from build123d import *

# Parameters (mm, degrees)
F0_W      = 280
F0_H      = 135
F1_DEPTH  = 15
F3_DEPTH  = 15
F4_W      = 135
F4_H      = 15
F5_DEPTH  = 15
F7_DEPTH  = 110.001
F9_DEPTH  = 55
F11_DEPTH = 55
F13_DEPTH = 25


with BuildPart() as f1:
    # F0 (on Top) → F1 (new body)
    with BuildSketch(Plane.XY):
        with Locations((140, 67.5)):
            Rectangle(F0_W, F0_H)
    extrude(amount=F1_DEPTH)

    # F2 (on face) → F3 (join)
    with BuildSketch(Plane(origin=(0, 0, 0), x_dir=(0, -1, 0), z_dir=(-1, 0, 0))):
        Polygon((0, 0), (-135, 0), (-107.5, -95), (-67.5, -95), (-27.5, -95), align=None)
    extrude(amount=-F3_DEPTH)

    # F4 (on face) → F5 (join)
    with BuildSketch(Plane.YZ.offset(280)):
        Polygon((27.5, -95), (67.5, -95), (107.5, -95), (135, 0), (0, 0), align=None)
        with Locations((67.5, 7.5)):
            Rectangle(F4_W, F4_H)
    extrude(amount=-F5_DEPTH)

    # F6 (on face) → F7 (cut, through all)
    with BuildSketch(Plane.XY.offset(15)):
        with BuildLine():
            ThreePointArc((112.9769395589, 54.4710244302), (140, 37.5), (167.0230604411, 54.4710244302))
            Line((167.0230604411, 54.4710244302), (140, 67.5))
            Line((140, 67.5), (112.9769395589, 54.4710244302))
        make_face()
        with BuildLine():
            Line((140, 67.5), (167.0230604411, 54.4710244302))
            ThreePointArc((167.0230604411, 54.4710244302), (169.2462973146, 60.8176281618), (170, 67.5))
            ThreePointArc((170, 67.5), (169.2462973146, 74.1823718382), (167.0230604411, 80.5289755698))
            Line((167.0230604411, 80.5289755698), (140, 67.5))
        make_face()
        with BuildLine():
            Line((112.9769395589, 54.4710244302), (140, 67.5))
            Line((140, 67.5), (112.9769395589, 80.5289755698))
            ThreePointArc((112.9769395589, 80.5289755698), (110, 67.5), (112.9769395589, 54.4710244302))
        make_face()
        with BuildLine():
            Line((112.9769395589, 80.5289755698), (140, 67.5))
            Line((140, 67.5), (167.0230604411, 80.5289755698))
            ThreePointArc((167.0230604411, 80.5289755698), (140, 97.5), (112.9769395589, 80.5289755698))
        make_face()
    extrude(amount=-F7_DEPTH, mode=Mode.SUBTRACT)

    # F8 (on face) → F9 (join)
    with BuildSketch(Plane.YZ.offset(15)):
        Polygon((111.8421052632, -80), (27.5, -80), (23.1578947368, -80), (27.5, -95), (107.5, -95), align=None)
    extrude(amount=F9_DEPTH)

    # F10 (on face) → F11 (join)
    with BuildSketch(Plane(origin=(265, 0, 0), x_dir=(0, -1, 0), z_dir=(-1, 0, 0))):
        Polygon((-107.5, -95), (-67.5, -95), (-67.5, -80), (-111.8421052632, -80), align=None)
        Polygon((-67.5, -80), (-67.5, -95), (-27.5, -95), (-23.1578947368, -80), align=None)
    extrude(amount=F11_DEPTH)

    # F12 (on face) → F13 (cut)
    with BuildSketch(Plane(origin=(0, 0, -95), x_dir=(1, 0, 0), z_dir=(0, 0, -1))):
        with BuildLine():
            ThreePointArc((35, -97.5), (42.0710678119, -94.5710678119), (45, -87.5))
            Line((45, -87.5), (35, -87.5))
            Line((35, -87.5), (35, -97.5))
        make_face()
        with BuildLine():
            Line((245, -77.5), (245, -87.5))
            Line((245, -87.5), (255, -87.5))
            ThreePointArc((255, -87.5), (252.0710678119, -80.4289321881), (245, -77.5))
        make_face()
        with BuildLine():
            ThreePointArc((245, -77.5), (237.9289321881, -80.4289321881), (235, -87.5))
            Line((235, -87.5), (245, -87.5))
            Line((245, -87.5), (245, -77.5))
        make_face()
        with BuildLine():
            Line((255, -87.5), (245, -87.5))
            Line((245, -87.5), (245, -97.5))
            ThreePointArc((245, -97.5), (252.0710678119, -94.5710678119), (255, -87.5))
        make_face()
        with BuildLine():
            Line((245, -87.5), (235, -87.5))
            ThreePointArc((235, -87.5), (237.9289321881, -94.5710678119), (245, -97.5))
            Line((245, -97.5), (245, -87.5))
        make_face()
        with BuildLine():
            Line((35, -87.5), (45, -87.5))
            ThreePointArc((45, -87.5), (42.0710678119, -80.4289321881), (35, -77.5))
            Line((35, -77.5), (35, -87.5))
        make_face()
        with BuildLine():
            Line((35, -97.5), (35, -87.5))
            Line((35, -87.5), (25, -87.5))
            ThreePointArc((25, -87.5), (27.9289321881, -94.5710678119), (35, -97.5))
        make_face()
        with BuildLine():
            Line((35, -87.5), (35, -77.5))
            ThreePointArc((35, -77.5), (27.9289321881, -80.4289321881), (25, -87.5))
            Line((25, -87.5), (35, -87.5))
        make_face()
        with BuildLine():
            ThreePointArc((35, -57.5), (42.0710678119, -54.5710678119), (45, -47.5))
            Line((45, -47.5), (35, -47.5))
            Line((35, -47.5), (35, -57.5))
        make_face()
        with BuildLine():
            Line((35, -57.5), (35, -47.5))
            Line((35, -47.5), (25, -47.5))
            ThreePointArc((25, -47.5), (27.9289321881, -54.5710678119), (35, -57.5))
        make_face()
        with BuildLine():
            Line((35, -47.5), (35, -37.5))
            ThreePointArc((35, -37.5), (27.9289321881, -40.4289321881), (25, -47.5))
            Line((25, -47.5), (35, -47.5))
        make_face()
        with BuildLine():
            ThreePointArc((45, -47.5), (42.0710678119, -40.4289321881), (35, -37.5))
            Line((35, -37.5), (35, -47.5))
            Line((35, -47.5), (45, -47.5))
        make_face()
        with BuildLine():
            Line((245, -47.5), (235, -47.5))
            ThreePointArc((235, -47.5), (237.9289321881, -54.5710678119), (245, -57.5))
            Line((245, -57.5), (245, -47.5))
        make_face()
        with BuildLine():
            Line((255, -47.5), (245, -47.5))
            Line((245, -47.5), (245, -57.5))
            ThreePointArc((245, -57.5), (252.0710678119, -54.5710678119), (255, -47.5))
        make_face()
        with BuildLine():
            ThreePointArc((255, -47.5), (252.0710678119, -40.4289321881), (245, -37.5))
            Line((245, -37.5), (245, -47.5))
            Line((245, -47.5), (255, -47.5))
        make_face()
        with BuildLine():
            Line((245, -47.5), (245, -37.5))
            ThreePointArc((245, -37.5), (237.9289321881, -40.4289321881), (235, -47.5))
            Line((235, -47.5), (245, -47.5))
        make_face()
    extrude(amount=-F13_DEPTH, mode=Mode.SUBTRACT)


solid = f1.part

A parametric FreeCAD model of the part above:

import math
import FreeCAD as App
import Part
import Sketcher

V = App.Vector
Q = App.Units.Quantity

doc = App.newDocument("Part")
params = doc.addObject("Spreadsheet::Sheet", "Params")
for row, (alias, value) in enumerate([
    ("sketch1_width", "280 mm"),
    ("sketch1_height", "135 mm"),
    ("pad1_length", "15 mm"),
    ("sketch2_width", "135 mm"),
    ("sketch2_width2", "80 mm"),
    ("pad2_length", "15 mm"),
    ("sketch3_width", "80 mm"),
    ("sketch3_width2", "135 mm"),
    ("sketch3_height", "15 mm"),
    ("pad3_length", "15 mm"),
    ("sketch4_radius", "30 mm"),
    ("sketch5_width", "80 mm"),
    ("pad4_length", "55 mm"),
    ("sketch6_width", "80 mm"),
    ("pad5_length", "55 mm"),
    ("sketch7_radius", "10 mm"),
    ("pocket2_length", "25 mm"),
], start=1):
    params.set(f"A{row}", alias)
    params.set(f"B{row}", "=" + value)
    params.setAlias(f"B{row}", alias)

body = doc.addObject("PartDesign::Body", "Body")

# Sketch on XY plane
sketch1 = body.newObject("Sketcher::SketchObject", "Sketch")
sketch1.AttachmentSupport = (doc.getObject("XY_Plane"), [""])
sketch1.MapMode = "FlatFace"
sketch1.addGeometry(Part.LineSegment(V(0, 135, 0), V(0, 0, 0)), False)
sketch1.addGeometry(Part.LineSegment(V(0, 0, 0), V(280, 0, 0)), False)
sketch1.addGeometry(Part.LineSegment(V(280, 0, 0), V(280, 135, 0)), False)
sketch1.addGeometry(Part.LineSegment(V(280, 135, 0), V(0, 135, 0)), False)
sketch1.addConstraint(Sketcher.Constraint("Coincident", 0, 2, 1, 1))
sketch1.addConstraint(Sketcher.Constraint("Coincident", 1, 2, 2, 1))
sketch1.addConstraint(Sketcher.Constraint("Coincident", 2, 2, 3, 1))
sketch1.addConstraint(Sketcher.Constraint("Coincident", 3, 2, 0, 1))
sketch1.addConstraint(Sketcher.Constraint("Vertical", 0))
sketch1.addConstraint(Sketcher.Constraint("Horizontal", 1))
sketch1.addConstraint(Sketcher.Constraint("Vertical", 2))
sketch1.addConstraint(Sketcher.Constraint("Horizontal", 3))
sketch1.addConstraint(Sketcher.Constraint("Coincident", 0, 2, -1, 1))
sketch1.addConstraint(Sketcher.Constraint("DistanceX", 1, 1, 1, 2, Q("280 mm")))
sketch1.addConstraint(Sketcher.Constraint("DistanceY", 0, 2, 0, 1, Q("135 mm")))
sketch1.setExpression("Constraints[9]", "Params.sketch1_width")
sketch1.setExpression("Constraints[10]", "Params.sketch1_height")
pad1 = body.newObject("PartDesign::Pad", "Pad")
pad1.Profile = sketch1
pad1.setExpression("Length", "Params.pad1_length")

# Sketch on YZ plane
sketch2 = body.newObject("Sketcher::SketchObject", "Sketch001")
sketch2.AttachmentSupport = (doc.getObject("YZ_Plane"), [""])
sketch2.MapMode = "FlatFace"
sketch2.addGeometry(Part.LineSegment(V(0, 0, 0), V(135, 0, 0)), False)
sketch2.addGeometry(Part.LineSegment(V(135, 0, 0), V(108, -95, 0)), False)
sketch2.addGeometry(Part.LineSegment(V(108, -95, 0), V(28, -95, 0)), False)
sketch2.addGeometry(Part.LineSegment(V(28, -95, 0), V(0, 0, 0)), False)
sketch2.addConstraint(Sketcher.Constraint("Coincident", 0, 2, 1, 1))
sketch2.addConstraint(Sketcher.Constraint("Coincident", 1, 2, 2, 1))
sketch2.addConstraint(Sketcher.Constraint("Coincident", 2, 2, 3, 1))
sketch2.addConstraint(Sketcher.Constraint("Coincident", 3, 2, 0, 1))
sketch2.addConstraint(Sketcher.Constraint("Horizontal", 0))
sketch2.addConstraint(Sketcher.Constraint("Horizontal", 2))
sketch2.addConstraint(Sketcher.Constraint("Coincident", 3, 2, -1, 1))
sketch2.addConstraint(Sketcher.Constraint("Equal", 1, 3))
sketch2.addConstraint(Sketcher.Constraint("DistanceX", 0, 1, 0, 2, Q("135 mm")))
sketch2.addConstraint(Sketcher.Constraint("DistanceX", 2, 2, 2, 1, Q("80 mm")))
sketch2.addConstraint(Sketcher.Constraint("DistanceY", 1, 2, -1, 1, Q("95 mm")))
sketch2.setExpression("Constraints[8]", "Params.sketch2_width")
sketch2.setExpression("Constraints[9]", "Params.sketch2_width2")
pad2 = body.newObject("PartDesign::Pad", "Pad001")
pad2.Profile = sketch2
pad2.setExpression("Length", "Params.pad2_length")

# Sketch on YZ plane
sketch3 = body.newObject("Sketcher::SketchObject", "Sketch002")
sketch3.AttachmentSupport = (doc.getObject("YZ_Plane"), [""])
sketch3.MapMode = "FlatFace"
sketch3.AttachmentOffset = App.Placement(V(0, 0, 280), App.Rotation())
sketch3.addGeometry(Part.LineSegment(V(28, -95, 0), V(108, -95, 0)), False)
sketch3.addGeometry(Part.LineSegment(V(108, -95, 0), V(135, 0, 0)), False)
sketch3.addGeometry(Part.LineSegment(V(135, 0, 0), V(135, 15, 0)), False)
sketch3.addGeometry(Part.LineSegment(V(135, 15, 0), V(0, 15, 0)), False)
sketch3.addGeometry(Part.LineSegment(V(0, 15, 0), V(0, 0, 0)), False)
sketch3.addGeometry(Part.LineSegment(V(0, 0, 0), V(28, -95, 0)), False)
sketch3.addConstraint(Sketcher.Constraint("Coincident", 0, 2, 1, 1))
sketch3.addConstraint(Sketcher.Constraint("Coincident", 1, 2, 2, 1))
sketch3.addConstraint(Sketcher.Constraint("Coincident", 2, 2, 3, 1))
sketch3.addConstraint(Sketcher.Constraint("Coincident", 3, 2, 4, 1))
sketch3.addConstraint(Sketcher.Constraint("Coincident", 4, 2, 5, 1))
sketch3.addConstraint(Sketcher.Constraint("Coincident", 5, 2, 0, 1))
sketch3.addConstraint(Sketcher.Constraint("Horizontal", 0))
sketch3.addConstraint(Sketcher.Constraint("Vertical", 2))
sketch3.addConstraint(Sketcher.Constraint("Horizontal", 3))
sketch3.addConstraint(Sketcher.Constraint("Vertical", 4))
sketch3.addConstraint(Sketcher.Constraint("Coincident", 4, 2, -1, 1))
sketch3.addConstraint(Sketcher.Constraint("PointOnObject", 1, 2, -1))
sketch3.addConstraint(Sketcher.Constraint("Equal", 1, 5))
sketch3.addConstraint(Sketcher.Constraint("DistanceX", 0, 1, 0, 2, Q("80 mm")))
sketch3.addConstraint(Sketcher.Constraint("DistanceX", 3, 2, 3, 1, Q("135 mm")))
sketch3.addConstraint(Sketcher.Constraint("DistanceY", 2, 1, 2, 2, Q("15 mm")))
sketch3.addConstraint(Sketcher.Constraint("DistanceY", 0, 2, -1, 1, Q("95 mm")))
sketch3.setExpression("Constraints[13]", "Params.sketch3_width")
sketch3.setExpression("Constraints[14]", "Params.sketch3_width2")
sketch3.setExpression("Constraints[15]", "Params.sketch3_height")
pad3 = body.newObject("PartDesign::Pad", "Pad002")
pad3.Profile = sketch3
pad3.setExpression("Length", "Params.pad3_length")
pad3.Reversed = True

# Sketch on XY plane
sketch4 = body.newObject("Sketcher::SketchObject", "Sketch003")
sketch4.AttachmentSupport = (doc.getObject("XY_Plane"), [""])
sketch4.MapMode = "FlatFace"
sketch4.AttachmentOffset = App.Placement(V(0, 0, 15), App.Rotation())
sketch4.addGeometry(Part.ArcOfCircle(Part.Circle(V(140, 68, 0), V(0, 0, 1), 30), math.radians(-154), math.radians(-26)), False)
sketch4.addGeometry(Part.ArcOfCircle(Part.Circle(V(140, 68, 0), V(0, 0, 1), 30), math.radians(-26), math.radians(0)), False)
sketch4.addGeometry(Part.ArcOfCircle(Part.Circle(V(140, 68, 0), V(0, 0, 1), 30), math.radians(0), math.radians(26)), False)
sketch4.addGeometry(Part.ArcOfCircle(Part.Circle(V(140, 68, 0), V(0, 0, 1), 30), math.radians(26), math.radians(154)), False)
sketch4.addGeometry(Part.ArcOfCircle(Part.Circle(V(140, 68, 0), V(0, 0, 1), 30), math.radians(154), math.radians(206)), False)
sketch4.addConstraint(Sketcher.Constraint("Tangent", 0, 2, 1, 1))
sketch4.addConstraint(Sketcher.Constraint("Tangent", 1, 2, 2, 1))
sketch4.addConstraint(Sketcher.Constraint("Tangent", 2, 2, 3, 1))
sketch4.addConstraint(Sketcher.Constraint("Tangent", 3, 2, 4, 1))
sketch4.addConstraint(Sketcher.Constraint("Tangent", 4, 2, 0, 1))
sketch4.addConstraint(Sketcher.Constraint("Coincident", 2, 3, 0, 3))
sketch4.addConstraint(Sketcher.Constraint("Horizontal", 4, 3, 1, 2))
sketch4.addConstraint(Sketcher.Constraint("Horizontal", 2, 2, 3, 2))
sketch4.addConstraint(Sketcher.Constraint("Horizontal", 0, 2, 4, 2))
sketch4.addConstraint(Sketcher.Constraint("Vertical", 0, 2, 2, 2))
sketch4.addConstraint(Sketcher.Constraint("Radius", 0, Q("30 mm")))
sketch4.addConstraint(Sketcher.Constraint("DistanceX", -1, 1, 0, 3, Q("140 mm")))
sketch4.addConstraint(Sketcher.Constraint("DistanceY", -1, 1, 0, 3, Q("67.5 mm")))
sketch4.addConstraint(Sketcher.Constraint("DistanceX", -1, 1, 0, 2, Q("167.02306 mm")))
sketch4.setExpression("Constraints[10]", "Params.sketch4_radius")
pocket1 = body.newObject("PartDesign::Pocket", "Pocket")
pocket1.Profile = sketch4
pocket1.Type = "ThroughAll"

# Sketch on YZ plane
sketch5 = body.newObject("Sketcher::SketchObject", "Sketch004")
sketch5.AttachmentSupport = (doc.getObject("YZ_Plane"), [""])
sketch5.MapMode = "FlatFace"
sketch5.AttachmentOffset = App.Placement(V(0, 0, 15), App.Rotation())
sketch5.addGeometry(Part.LineSegment(V(112, -80, 0), V(23, -80, 0)), False)
sketch5.addGeometry(Part.LineSegment(V(23, -80, 0), V(28, -95, 0)), False)
sketch5.addGeometry(Part.LineSegment(V(28, -95, 0), V(108, -95, 0)), False)
sketch5.addGeometry(Part.LineSegment(V(108, -95, 0), V(112, -80, 0)), False)
sketch5.addConstraint(Sketcher.Constraint("Coincident", 0, 2, 1, 1))
sketch5.addConstraint(Sketcher.Constraint("Coincident", 1, 2, 2, 1))
sketch5.addConstraint(Sketcher.Constraint("Coincident", 2, 2, 3, 1))
sketch5.addConstraint(Sketcher.Constraint("Coincident", 3, 2, 0, 1))
sketch5.addConstraint(Sketcher.Constraint("Horizontal", 0))
sketch5.addConstraint(Sketcher.Constraint("Horizontal", 2))
sketch5.addConstraint(Sketcher.Constraint("Equal", 1, 3))
sketch5.addConstraint(Sketcher.Constraint("DistanceX", 2, 1, 2, 2, Q("80 mm")))
sketch5.addConstraint(Sketcher.Constraint("DistanceY", 0, 2, -1, 1, Q("80 mm")))
sketch5.addConstraint(Sketcher.Constraint("DistanceY", 1, 2, -1, 1, Q("95 mm")))
sketch5.addConstraint(Sketcher.Constraint("DistanceX", -1, 1, 1, 2, Q("27.5 mm")))
sketch5.addConstraint(Sketcher.Constraint("DistanceX", 0, 2, 0, 1, Q("88.684211 mm")))
sketch5.setExpression("Constraints[7]", "Params.sketch5_width")
pad4 = body.newObject("PartDesign::Pad", "Pad003")
pad4.Profile = sketch5
pad4.setExpression("Length", "Params.pad4_length")

# Sketch on YZ plane
sketch6 = body.newObject("Sketcher::SketchObject", "Sketch005")
sketch6.AttachmentSupport = (doc.getObject("YZ_Plane"), [""])
sketch6.MapMode = "FlatFace"
sketch6.AttachmentOffset = App.Placement(V(0, 0, 265), App.Rotation())
sketch6.addGeometry(Part.LineSegment(V(108, -95, 0), V(28, -95, 0)), False)
sketch6.addGeometry(Part.LineSegment(V(28, -95, 0), V(23, -80, 0)), False)
sketch6.addGeometry(Part.LineSegment(V(23, -80, 0), V(112, -80, 0)), False)
sketch6.addGeometry(Part.LineSegment(V(112, -80, 0), V(108, -95, 0)), False)
sketch6.addConstraint(Sketcher.Constraint("Coincident", 0, 2, 1, 1))
sketch6.addConstraint(Sketcher.Constraint("Coincident", 1, 2, 2, 1))
sketch6.addConstraint(Sketcher.Constraint("Coincident", 2, 2, 3, 1))
sketch6.addConstraint(Sketcher.Constraint("Coincident", 3, 2, 0, 1))
sketch6.addConstraint(Sketcher.Constraint("Horizontal", 0))
sketch6.addConstraint(Sketcher.Constraint("Horizontal", 2))
sketch6.addConstraint(Sketcher.Constraint("Equal", 1, 3))
sketch6.addConstraint(Sketcher.Constraint("DistanceX", 0, 2, 0, 1, Q("80 mm")))
sketch6.addConstraint(Sketcher.Constraint("DistanceY", 0, 2, -1, 1, Q("95 mm")))
sketch6.addConstraint(Sketcher.Constraint("DistanceY", 1, 2, -1, 1, Q("80 mm")))
sketch6.addConstraint(Sketcher.Constraint("DistanceX", -1, 1, 0, 2, Q("27.5 mm")))
sketch6.addConstraint(Sketcher.Constraint("DistanceX", 2, 1, 2, 2, Q("88.684211 mm")))
sketch6.setExpression("Constraints[7]", "Params.sketch6_width")
pad5 = body.newObject("PartDesign::Pad", "Pad004")
pad5.Profile = sketch6
pad5.setExpression("Length", "Params.pad5_length")
pad5.Reversed = True

# Sketch on XY plane
sketch7 = body.newObject("Sketcher::SketchObject", "Sketch006")
sketch7.AttachmentSupport = (doc.getObject("XY_Plane"), [""])
sketch7.MapMode = "FlatFace"
sketch7.AttachmentOffset = App.Placement(V(0, 0, -95), App.Rotation())
sketch7.addGeometry(Part.ArcOfCircle(Part.Circle(V(35, 88, 0), V(0, 0, 1), 10), math.radians(0), math.radians(90)), False)
sketch7.addGeometry(Part.ArcOfCircle(Part.Circle(V(35, 88, 0), V(0, 0, 1), 10), math.radians(-90), math.radians(0)), False)
sketch7.addGeometry(Part.ArcOfCircle(Part.Circle(V(35, 88, 0), V(0, 0, 1), 10), math.radians(180), math.radians(270)), False)
sketch7.addGeometry(Part.ArcOfCircle(Part.Circle(V(35, 88, 0), V(0, 0, 1), 10), math.radians(90), math.radians(180)), False)
sketch7.addGeometry(Part.ArcOfCircle(Part.Circle(V(245, 88, 0), V(0, 0, 1), 10), math.radians(-90), math.radians(0)), False)
sketch7.addGeometry(Part.ArcOfCircle(Part.Circle(V(245, 88, 0), V(0, 0, 1), 10), math.radians(180), math.radians(270)), False)
sketch7.addGeometry(Part.ArcOfCircle(Part.Circle(V(245, 88, 0), V(0, 0, 1), 10), math.radians(90), math.radians(180)), False)
sketch7.addGeometry(Part.ArcOfCircle(Part.Circle(V(245, 88, 0), V(0, 0, 1), 10), math.radians(0), math.radians(90)), False)
sketch7.addGeometry(Part.ArcOfCircle(Part.Circle(V(35, 48, 0), V(0, 0, 1), 10), math.radians(0), math.radians(90)), False)
sketch7.addGeometry(Part.ArcOfCircle(Part.Circle(V(35, 48, 0), V(0, 0, 1), 10), math.radians(-90), math.radians(0)), False)
sketch7.addGeometry(Part.ArcOfCircle(Part.Circle(V(35, 48, 0), V(0, 0, 1), 10), math.radians(180), math.radians(270)), False)
sketch7.addGeometry(Part.ArcOfCircle(Part.Circle(V(35, 48, 0), V(0, 0, 1), 10), math.radians(90), math.radians(180)), False)
sketch7.addGeometry(Part.ArcOfCircle(Part.Circle(V(245, 48, 0), V(0, 0, 1), 10), math.radians(90), math.radians(180)), False)
sketch7.addGeometry(Part.ArcOfCircle(Part.Circle(V(245, 48, 0), V(0, 0, 1), 10), math.radians(0), math.radians(90)), False)
sketch7.addGeometry(Part.ArcOfCircle(Part.Circle(V(245, 48, 0), V(0, 0, 1), 10), math.radians(-90), math.radians(0)), False)
sketch7.addGeometry(Part.ArcOfCircle(Part.Circle(V(245, 48, 0), V(0, 0, 1), 10), math.radians(180), math.radians(270)), False)
sketch7.addConstraint(Sketcher.Constraint("Tangent", 0, 1, 1, 2))
sketch7.addConstraint(Sketcher.Constraint("Tangent", 1, 1, 2, 2))
sketch7.addConstraint(Sketcher.Constraint("Tangent", 2, 1, 3, 2))
sketch7.addConstraint(Sketcher.Constraint("Tangent", 3, 1, 0, 2))
sketch7.addConstraint(Sketcher.Constraint("Tangent", 4, 1, 5, 2))
sketch7.addConstraint(Sketcher.Constraint("Tangent", 5, 1, 6, 2))
sketch7.addConstraint(Sketcher.Constraint("Tangent", 6, 1, 7, 2))
sketch7.addConstraint(Sketcher.Constraint("Tangent", 7, 1, 4, 2))
sketch7.addConstraint(Sketcher.Constraint("Tangent", 8, 1, 9, 2))
sketch7.addConstraint(Sketcher.Constraint("Tangent", 9, 1, 10, 2))
sketch7.addConstraint(Sketcher.Constraint("Tangent", 10, 1, 11, 2))
sketch7.addConstraint(Sketcher.Constraint("Tangent", 11, 1, 8, 2))
sketch7.addConstraint(Sketcher.Constraint("Tangent", 12, 1, 13, 2))
sketch7.addConstraint(Sketcher.Constraint("Tangent", 13, 1, 14, 2))
sketch7.addConstraint(Sketcher.Constraint("Tangent", 14, 1, 15, 2))
sketch7.addConstraint(Sketcher.Constraint("Tangent", 15, 1, 12, 2))
sketch7.addConstraint(Sketcher.Constraint("Equal", 0, 1))
sketch7.addConstraint(Sketcher.Constraint("Equal", 3, 4))
sketch7.addConstraint(Sketcher.Constraint("Equal", 4, 5))
sketch7.addConstraint(Sketcher.Constraint("Equal", 7, 8))
sketch7.addConstraint(Sketcher.Constraint("Equal", 8, 9))
sketch7.addConstraint(Sketcher.Constraint("Equal", 11, 12))
sketch7.addConstraint(Sketcher.Constraint("Equal", 12, 13))
sketch7.addConstraint(Sketcher.Constraint("Horizontal", 3, 3, 4, 3))
sketch7.addConstraint(Sketcher.Constraint("Horizontal", 11, 3, 12, 3))
sketch7.addConstraint(Sketcher.Constraint("Horizontal", 7, 3, 0, 1))
sketch7.addConstraint(Sketcher.Constraint("Horizontal", 0, 1, 2, 1))
sketch7.addConstraint(Sketcher.Constraint("Horizontal", 2, 1, 5, 1))
sketch7.addConstraint(Sketcher.Constraint("Horizontal", 5, 1, 7, 1))
sketch7.addConstraint(Sketcher.Constraint("Horizontal", 15, 3, 8, 1))
sketch7.addConstraint(Sketcher.Constraint("Horizontal", 8, 1, 10, 1))
sketch7.addConstraint(Sketcher.Constraint("Horizontal", 10, 1, 13, 1))
sketch7.addConstraint(Sketcher.Constraint("Horizontal", 13, 1, 15, 1))
sketch7.addConstraint(Sketcher.Constraint("Vertical", 3, 3, 8, 3))
sketch7.addConstraint(Sketcher.Constraint("Vertical", 7, 3, 12, 3))
sketch7.addConstraint(Sketcher.Constraint("Vertical", 11, 3, 1, 1))
sketch7.addConstraint(Sketcher.Constraint("Vertical", 1, 1, 3, 1))
sketch7.addConstraint(Sketcher.Constraint("Vertical", 15, 3, 4, 1))
sketch7.addConstraint(Sketcher.Constraint("Vertical", 4, 1, 6, 1))
sketch7.addConstraint(Sketcher.Constraint("Vertical", 3, 1, 9, 1))
sketch7.addConstraint(Sketcher.Constraint("Vertical", 9, 1, 11, 1))
sketch7.addConstraint(Sketcher.Constraint("Vertical", 6, 1, 12, 1))
sketch7.addConstraint(Sketcher.Constraint("Vertical", 12, 1, 14, 1))
sketch7.addConstraint(Sketcher.Constraint("Radius", 0, Q("10 mm")))
sketch7.addConstraint(Sketcher.Constraint("DistanceX", -1, 1, 0, 3, Q("35 mm")))
sketch7.addConstraint(Sketcher.Constraint("DistanceX", -1, 1, 4, 3, Q("245 mm")))
sketch7.addConstraint(Sketcher.Constraint("DistanceY", 8, 3, 0, 3, Q("40 mm")))
sketch7.addConstraint(Sketcher.Constraint("DistanceY", -1, 1, 0, 3, Q("87.5 mm")))
sketch7.setExpression("Constraints[43]", "Params.sketch7_radius")
pocket2 = body.newObject("PartDesign::Pocket", "Pocket001")
pocket2.Profile = sketch7
pocket2.setExpression("Length", "Params.pocket2_length")
pocket2.Reversed = True

doc.recompute()
